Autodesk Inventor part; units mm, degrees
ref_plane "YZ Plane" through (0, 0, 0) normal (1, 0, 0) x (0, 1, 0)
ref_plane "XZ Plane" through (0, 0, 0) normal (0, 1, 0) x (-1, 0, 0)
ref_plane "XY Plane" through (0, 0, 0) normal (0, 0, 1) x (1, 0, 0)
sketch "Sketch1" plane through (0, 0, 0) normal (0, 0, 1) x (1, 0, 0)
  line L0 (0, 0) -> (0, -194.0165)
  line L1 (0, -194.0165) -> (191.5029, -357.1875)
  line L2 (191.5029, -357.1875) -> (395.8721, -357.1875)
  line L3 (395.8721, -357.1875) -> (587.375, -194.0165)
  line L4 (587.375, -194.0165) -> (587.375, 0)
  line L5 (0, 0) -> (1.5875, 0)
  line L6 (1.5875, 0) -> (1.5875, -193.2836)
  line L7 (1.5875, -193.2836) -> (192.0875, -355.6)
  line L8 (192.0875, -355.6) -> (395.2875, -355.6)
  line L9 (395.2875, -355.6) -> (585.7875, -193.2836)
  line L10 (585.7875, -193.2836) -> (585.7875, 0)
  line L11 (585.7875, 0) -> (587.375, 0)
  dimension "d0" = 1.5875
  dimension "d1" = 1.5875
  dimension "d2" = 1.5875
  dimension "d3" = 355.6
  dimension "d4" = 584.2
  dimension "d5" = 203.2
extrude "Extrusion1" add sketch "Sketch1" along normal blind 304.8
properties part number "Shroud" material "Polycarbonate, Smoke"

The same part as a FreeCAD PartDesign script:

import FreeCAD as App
import Part
import Sketcher
from FreeCAD import Vector
Q = App.Units.Quantity


def add_polygon(sketch, points):
    """Adds a closed chain of lines whose ends are joined by coincident constraints."""
    first, n = sketch.GeometryCount, len(points)
    for a, b in zip(points, points[1:] + points[:1]):
        sketch.addGeometry(Part.LineSegment(App.Vector(*a, 0), App.Vector(*b, 0)), False)
    for i in range(n):
        sketch.addConstraint(Sketcher.Constraint("Coincident", first + i, 2, first + (i + 1) % n, 1))

doc = App.newDocument("Part")
body = doc.addObject("PartDesign::Body", "Body")

# Sketch on XY plane
sketch1 = body.newObject("Sketcher::SketchObject", "Sketch")
sketch1.AttachmentSupport = (doc.getObject("XY_Plane"), [""])
sketch1.MapMode = "FlatFace"
add_polygon(sketch1, [(1.6, 0), (0, 0), (0, -194), (191.5, -357.2), (395.9, -357.2), (587.4, -194), (587.4, 0), (585.8, 0), (585.8, -193.3), (395.3, -355.6), (192.1, -355.6), (1.6, -193.3)])  # lines 0-11
sketch1.addConstraint(Sketcher.Constraint("Horizontal", 0))
sketch1.addConstraint(Sketcher.Constraint("Vertical", 1))
sketch1.addConstraint(Sketcher.Constraint("Horizontal", 3))
sketch1.addConstraint(Sketcher.Constraint("Vertical", 5))
sketch1.addConstraint(Sketcher.Constraint("Horizontal", 6))
sketch1.addConstraint(Sketcher.Constraint("Vertical", 7))
sketch1.addConstraint(Sketcher.Constraint("Horizontal", 9))
sketch1.addConstraint(Sketcher.Constraint("Vertical", 11))
sketch1.addConstraint(Sketcher.Constraint("Coincident", 0, 2, -1, 1))
sketch1.addConstraint(Sketcher.Constraint("PointOnObject", 5, 2, -1))
sketch1.addConstraint(Sketcher.Constraint("Parallel", 4, 8))
sketch1.addConstraint(Sketcher.Constraint("Parallel", 2, 10))
sketch1.addConstraint(Sketcher.Constraint("Horizontal", 1, 2, 4, 2))
sketch1.addConstraint(Sketcher.Constraint("Horizontal", 7, 2, 10, 2))
sketch1.addConstraint(Sketcher.Constraint("Equal", 0, 6))
sketch1.addConstraint(Sketcher.Constraint("Equal", 2, 4))
sketch1.addConstraint(Sketcher.Constraint("DistanceX", 9, 2, 9, 1, Q("8 in")))
sketch1.addConstraint(Sketcher.Constraint("DistanceY", 8, 2, -1, 1, Q("14 in")))
sketch1.addConstraint(Sketcher.Constraint("DistanceX", 0, 2, 0, 1, Q("0.0625 in")))
sketch1.addConstraint(Sketcher.Constraint("DistanceY", 3, 2, 8, 2, Q("0.0625 in")))
sketch1.addConstraint(Sketcher.Constraint("DistanceX", 8, 2, 7, 2, Q("7.5 in")))
sketch1.addConstraint(Sketcher.Constraint("DistanceY", 7, 2, 7, 1, Q("7.6096 in")))
sketch1.addConstraint(Sketcher.Constraint("DistanceX", 3, 1, 3, 2, Q("204.3692 mm")))
pad1 = body.newObject("PartDesign::Pad", "Pad")
pad1.Profile = sketch1
pad1.Length = Q("12 in")

doc.recompute()
